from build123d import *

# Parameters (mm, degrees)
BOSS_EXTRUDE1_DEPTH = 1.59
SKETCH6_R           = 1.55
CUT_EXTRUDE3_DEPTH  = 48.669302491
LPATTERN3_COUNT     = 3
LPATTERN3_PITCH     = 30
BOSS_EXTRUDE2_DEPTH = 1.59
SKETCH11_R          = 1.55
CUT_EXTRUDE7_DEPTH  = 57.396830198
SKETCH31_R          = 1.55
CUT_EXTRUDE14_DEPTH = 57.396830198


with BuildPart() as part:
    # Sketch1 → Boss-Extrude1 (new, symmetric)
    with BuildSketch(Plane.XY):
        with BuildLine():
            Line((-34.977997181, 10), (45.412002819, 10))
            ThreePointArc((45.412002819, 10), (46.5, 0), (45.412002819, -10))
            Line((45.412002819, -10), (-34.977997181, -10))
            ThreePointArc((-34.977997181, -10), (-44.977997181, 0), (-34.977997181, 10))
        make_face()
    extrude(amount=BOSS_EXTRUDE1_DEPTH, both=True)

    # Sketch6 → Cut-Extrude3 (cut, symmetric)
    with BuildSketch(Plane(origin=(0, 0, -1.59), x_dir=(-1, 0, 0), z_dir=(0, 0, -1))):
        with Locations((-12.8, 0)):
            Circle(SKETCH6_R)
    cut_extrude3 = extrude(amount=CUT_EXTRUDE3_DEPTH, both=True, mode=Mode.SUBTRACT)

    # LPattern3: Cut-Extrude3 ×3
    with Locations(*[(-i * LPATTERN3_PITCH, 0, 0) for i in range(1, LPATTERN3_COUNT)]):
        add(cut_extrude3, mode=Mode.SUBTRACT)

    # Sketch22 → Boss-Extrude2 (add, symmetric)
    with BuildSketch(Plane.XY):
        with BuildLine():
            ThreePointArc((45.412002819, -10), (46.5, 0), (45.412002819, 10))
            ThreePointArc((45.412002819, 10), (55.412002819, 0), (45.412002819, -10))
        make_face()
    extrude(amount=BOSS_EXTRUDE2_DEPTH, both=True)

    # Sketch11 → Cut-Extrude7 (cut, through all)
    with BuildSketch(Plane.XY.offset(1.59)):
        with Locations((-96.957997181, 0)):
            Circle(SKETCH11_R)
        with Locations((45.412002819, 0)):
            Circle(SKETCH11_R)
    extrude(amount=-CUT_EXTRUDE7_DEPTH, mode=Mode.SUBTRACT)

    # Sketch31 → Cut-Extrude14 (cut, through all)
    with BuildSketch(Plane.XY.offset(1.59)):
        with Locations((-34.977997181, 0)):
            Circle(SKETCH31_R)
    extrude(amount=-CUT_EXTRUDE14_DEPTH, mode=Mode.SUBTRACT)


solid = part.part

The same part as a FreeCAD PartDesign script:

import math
import FreeCAD as App
import Part
import Sketcher
Q = App.Units.Quantity

doc = App.newDocument("Part")
params = doc.addObject("Spreadsheet::Sheet", "Params")
for row, (alias, value) in enumerate([
    ("sketch1_radius", "10 mm"),
    ("sketch1_radius2", "46.5 mm"),
    ("sketch1_width", "80.39 mm"),
    ("pad1_length", "3.18 mm"),
    ("sketch2_diameter", "3.1 mm"),
    ("pocket1_length", "97.338605 mm"),
    ("linearpattern_pitch", "30 mm"),
    ("sketch3_radius", "10 mm"),
    ("sketch3_radius2", "46.5 mm"),
    ("pad2_length", "3.18 mm"),
    ("sketch4_diameter", "3.1 mm"),
    ("sketch5_diameter", "3.1 mm"),
], start=1):
    params.set(f"A{row}", alias)
    params.set(f"B{row}", "=" + value)
    params.setAlias(f"B{row}", alias)

body = doc.addObject("PartDesign::Body", "Body")

# Sketch on XY plane
sketch1 = body.newObject("Sketcher::SketchObject", "Sketch")
sketch1.AttachmentSupport = (doc.getObject("XY_Plane"), [""])
sketch1.MapMode = "FlatFace"
sketch1.addGeometry([
    Part.LineSegment(App.Vector(45, 10, 0), App.Vector(-35, 10, 0)),
    Part.ArcOfCircle(Part.Circle(App.Vector(-35, 0, 0), App.Vector(0, 0, 1), 10), math.radians(90), math.radians(270)),
    Part.LineSegment(App.Vector(-35, -10, 0), App.Vector(45, -10, 0)),
    Part.ArcOfCircle(Part.Circle(App.Vector(0, 0, 0), App.Vector(0, 0, 1), 47), math.radians(-12), math.radians(12)),
], False)
sketch1.addConstraint([
    Sketcher.Constraint("Tangent", 0, 2, 1, 1),
    Sketcher.Constraint("Tangent", 1, 2, 2, 1),
    Sketcher.Constraint("Coincident", 2, 2, 3, 1),
    Sketcher.Constraint("Coincident", 3, 2, 0, 1),
    Sketcher.Constraint("Horizontal", 0),
    Sketcher.Constraint("Horizontal", 2),
    Sketcher.Constraint("Coincident", 3, 3, -1, 1),
    Sketcher.Constraint("PointOnObject", 1, 3, -1),
    Sketcher.Constraint("Radius", 1, Q("10 mm")),
    Sketcher.Constraint("Radius", 3, Q("46.5 mm")),
    Sketcher.Constraint("DistanceX", 0, 2, 0, 1, Q("80.39 mm")),
])
sketch1.setExpression("Constraints[8]", "Params.sketch1_radius")
sketch1.setExpression("Constraints[9]", "Params.sketch1_radius2")
sketch1.setExpression("Constraints[10]", "Params.sketch1_width")
pad1 = body.newObject("PartDesign::Pad", "Pad")
pad1.Profile = sketch1
pad1.setExpression("Length", "Params.pad1_length")
pad1.Midplane = True

# Sketch on XY plane
sketch2 = body.newObject("Sketcher::SketchObject", "Sketch001")
sketch2.AttachmentSupport = (doc.getObject("XY_Plane"), [""])
sketch2.MapMode = "FlatFace"
sketch2.AttachmentOffset = App.Placement(App.Vector(0, 0, -1.59), App.Rotation())
sketch2.addGeometry(Part.Circle(App.Vector(12.8, 0, 0), App.Vector(0, 0, 1), 1.6), False)
sketch2.addConstraint([
    Sketcher.Constraint("PointOnObject", 0, 3, -1),
    Sketcher.Constraint("Diameter", 0, Q("3.1 mm")),
    Sketcher.Constraint("DistanceX", -1, 1, 0, 3, Q("12.8 mm")),
])
sketch2.setExpression("Constraints[1]", "Params.sketch2_diameter")
pocket1 = body.newObject("PartDesign::Pocket", "Pocket")
pocket1.Profile = sketch2
pocket1.setExpression("Length", "Params.pocket1_length")
pocket1.Midplane = True
doc.recompute()

linearpattern = body.newObject("PartDesign::LinearPattern", "LinearPattern")
linearpattern.Originals = [pocket1]
linearpattern.Direction = (doc.getObject("X_Axis"), [""])
linearpattern.Mode = "offset"
linearpattern.setExpression("Offset", "Params.linearpattern_pitch")
linearpattern.Occurrences = 3
linearpattern.Reversed = True
body.Tip = linearpattern

# Sketch on XY plane
sketch3 = body.newObject("Sketcher::SketchObject", "Sketch002")
sketch3.AttachmentSupport = (doc.getObject("XY_Plane"), [""])
sketch3.MapMode = "FlatFace"
sketch3.addGeometry([
    Part.ArcOfCircle(Part.Circle(App.Vector(0, 0, 0), App.Vector(0, 0, 1), 47), math.radians(-12), math.radians(12)),
    Part.ArcOfCircle(Part.Circle(App.Vector(45, 0, 0), App.Vector(0, 0, 1), 10), math.radians(-90), math.radians(90)),
], False)
sketch3.addConstraint([
    Sketcher.Constraint("Coincident", 0, 1, 1, 1),
    Sketcher.Constraint("Coincident", 1, 2, 0, 2),
    Sketcher.Constraint("Coincident", 0, 3, -1, 1),
    Sketcher.Constraint("PointOnObject", 1, 3, -1),
    Sketcher.Constraint("Vertical", 1, 3, 0, 1),
    Sketcher.Constraint("Radius", 1, Q("10 mm")),
    Sketcher.Constraint("Radius", 0, Q("46.5 mm")),
])
sketch3.setExpression("Constraints[5]", "Params.sketch3_radius")
sketch3.setExpression("Constraints[6]", "Params.sketch3_radius2")
pad2 = body.newObject("PartDesign::Pad", "Pad001")
pad2.Profile = sketch3
pad2.setExpression("Length", "Params.pad2_length")
pad2.Midplane = True

# Sketch on XY plane
sketch4 = body.newObject("Sketcher::SketchObject", "Sketch003")
sketch4.AttachmentSupport = (doc.getObject("XY_Plane"), [""])
sketch4.MapMode = "FlatFace"
sketch4.AttachmentOffset = App.Placement(App.Vector(0, 0, 1.59), App.Rotation())
sketch4.addGeometry([
    Part.Circle(App.Vector(-97, 0, 0), App.Vector(0, 0, 1), 1.6),
    Part.Circle(App.Vector(45.4, 0, 0), App.Vector(0, 0, 1), 1.6),
], False)
sketch4.addConstraint([
    Sketcher.Constraint("Equal", 0, 1),
    Sketcher.Constraint("PointOnObject", 0, 3, -1),
    Sketcher.Constraint("PointOnObject", 1, 3, -1),
    Sketcher.Constraint("Diameter", 0, Q("3.1 mm")),
    Sketcher.Constraint("DistanceX", 0, 3, 1, 3, Q("142.37 mm")),
    Sketcher.Constraint("DistanceX", 0, 3, -1, 1, Q("96.957997 mm")),
])
sketch4.setExpression("Constraints[3]", "Params.sketch4_diameter")
pocket2 = body.newObject("PartDesign::Pocket", "Pocket001")
pocket2.Profile = sketch4
pocket2.Type = "ThroughAll"

# Sketch on XY plane
sketch5 = body.newObject("Sketcher::SketchObject", "Sketch004")
sketch5.AttachmentSupport = (doc.getObject("XY_Plane"), [""])
sketch5.MapMode = "FlatFace"
sketch5.AttachmentOffset = App.Placement(App.Vector(0, 0, 1.59), App.Rotation())
sketch5.addGeometry(Part.Circle(App.Vector(-35, 0, 0), App.Vector(0, 0, 1), 1.6), False)
sketch5.addConstraint([
    Sketcher.Constraint("PointOnObject", 0, 3, -1),
    Sketcher.Constraint("Diameter", 0, Q("3.1 mm")),
    Sketcher.Constraint("DistanceX", 0, 3, -1, 1, Q("34.977997 mm")),
])
sketch5.setExpression("Constraints[1]", "Params.sketch5_diameter")
pocket3 = body.newObject("PartDesign::Pocket", "Pocket002")
pocket3.Profile = sketch5
pocket3.Type = "ThroughAll"

doc.recompute()
